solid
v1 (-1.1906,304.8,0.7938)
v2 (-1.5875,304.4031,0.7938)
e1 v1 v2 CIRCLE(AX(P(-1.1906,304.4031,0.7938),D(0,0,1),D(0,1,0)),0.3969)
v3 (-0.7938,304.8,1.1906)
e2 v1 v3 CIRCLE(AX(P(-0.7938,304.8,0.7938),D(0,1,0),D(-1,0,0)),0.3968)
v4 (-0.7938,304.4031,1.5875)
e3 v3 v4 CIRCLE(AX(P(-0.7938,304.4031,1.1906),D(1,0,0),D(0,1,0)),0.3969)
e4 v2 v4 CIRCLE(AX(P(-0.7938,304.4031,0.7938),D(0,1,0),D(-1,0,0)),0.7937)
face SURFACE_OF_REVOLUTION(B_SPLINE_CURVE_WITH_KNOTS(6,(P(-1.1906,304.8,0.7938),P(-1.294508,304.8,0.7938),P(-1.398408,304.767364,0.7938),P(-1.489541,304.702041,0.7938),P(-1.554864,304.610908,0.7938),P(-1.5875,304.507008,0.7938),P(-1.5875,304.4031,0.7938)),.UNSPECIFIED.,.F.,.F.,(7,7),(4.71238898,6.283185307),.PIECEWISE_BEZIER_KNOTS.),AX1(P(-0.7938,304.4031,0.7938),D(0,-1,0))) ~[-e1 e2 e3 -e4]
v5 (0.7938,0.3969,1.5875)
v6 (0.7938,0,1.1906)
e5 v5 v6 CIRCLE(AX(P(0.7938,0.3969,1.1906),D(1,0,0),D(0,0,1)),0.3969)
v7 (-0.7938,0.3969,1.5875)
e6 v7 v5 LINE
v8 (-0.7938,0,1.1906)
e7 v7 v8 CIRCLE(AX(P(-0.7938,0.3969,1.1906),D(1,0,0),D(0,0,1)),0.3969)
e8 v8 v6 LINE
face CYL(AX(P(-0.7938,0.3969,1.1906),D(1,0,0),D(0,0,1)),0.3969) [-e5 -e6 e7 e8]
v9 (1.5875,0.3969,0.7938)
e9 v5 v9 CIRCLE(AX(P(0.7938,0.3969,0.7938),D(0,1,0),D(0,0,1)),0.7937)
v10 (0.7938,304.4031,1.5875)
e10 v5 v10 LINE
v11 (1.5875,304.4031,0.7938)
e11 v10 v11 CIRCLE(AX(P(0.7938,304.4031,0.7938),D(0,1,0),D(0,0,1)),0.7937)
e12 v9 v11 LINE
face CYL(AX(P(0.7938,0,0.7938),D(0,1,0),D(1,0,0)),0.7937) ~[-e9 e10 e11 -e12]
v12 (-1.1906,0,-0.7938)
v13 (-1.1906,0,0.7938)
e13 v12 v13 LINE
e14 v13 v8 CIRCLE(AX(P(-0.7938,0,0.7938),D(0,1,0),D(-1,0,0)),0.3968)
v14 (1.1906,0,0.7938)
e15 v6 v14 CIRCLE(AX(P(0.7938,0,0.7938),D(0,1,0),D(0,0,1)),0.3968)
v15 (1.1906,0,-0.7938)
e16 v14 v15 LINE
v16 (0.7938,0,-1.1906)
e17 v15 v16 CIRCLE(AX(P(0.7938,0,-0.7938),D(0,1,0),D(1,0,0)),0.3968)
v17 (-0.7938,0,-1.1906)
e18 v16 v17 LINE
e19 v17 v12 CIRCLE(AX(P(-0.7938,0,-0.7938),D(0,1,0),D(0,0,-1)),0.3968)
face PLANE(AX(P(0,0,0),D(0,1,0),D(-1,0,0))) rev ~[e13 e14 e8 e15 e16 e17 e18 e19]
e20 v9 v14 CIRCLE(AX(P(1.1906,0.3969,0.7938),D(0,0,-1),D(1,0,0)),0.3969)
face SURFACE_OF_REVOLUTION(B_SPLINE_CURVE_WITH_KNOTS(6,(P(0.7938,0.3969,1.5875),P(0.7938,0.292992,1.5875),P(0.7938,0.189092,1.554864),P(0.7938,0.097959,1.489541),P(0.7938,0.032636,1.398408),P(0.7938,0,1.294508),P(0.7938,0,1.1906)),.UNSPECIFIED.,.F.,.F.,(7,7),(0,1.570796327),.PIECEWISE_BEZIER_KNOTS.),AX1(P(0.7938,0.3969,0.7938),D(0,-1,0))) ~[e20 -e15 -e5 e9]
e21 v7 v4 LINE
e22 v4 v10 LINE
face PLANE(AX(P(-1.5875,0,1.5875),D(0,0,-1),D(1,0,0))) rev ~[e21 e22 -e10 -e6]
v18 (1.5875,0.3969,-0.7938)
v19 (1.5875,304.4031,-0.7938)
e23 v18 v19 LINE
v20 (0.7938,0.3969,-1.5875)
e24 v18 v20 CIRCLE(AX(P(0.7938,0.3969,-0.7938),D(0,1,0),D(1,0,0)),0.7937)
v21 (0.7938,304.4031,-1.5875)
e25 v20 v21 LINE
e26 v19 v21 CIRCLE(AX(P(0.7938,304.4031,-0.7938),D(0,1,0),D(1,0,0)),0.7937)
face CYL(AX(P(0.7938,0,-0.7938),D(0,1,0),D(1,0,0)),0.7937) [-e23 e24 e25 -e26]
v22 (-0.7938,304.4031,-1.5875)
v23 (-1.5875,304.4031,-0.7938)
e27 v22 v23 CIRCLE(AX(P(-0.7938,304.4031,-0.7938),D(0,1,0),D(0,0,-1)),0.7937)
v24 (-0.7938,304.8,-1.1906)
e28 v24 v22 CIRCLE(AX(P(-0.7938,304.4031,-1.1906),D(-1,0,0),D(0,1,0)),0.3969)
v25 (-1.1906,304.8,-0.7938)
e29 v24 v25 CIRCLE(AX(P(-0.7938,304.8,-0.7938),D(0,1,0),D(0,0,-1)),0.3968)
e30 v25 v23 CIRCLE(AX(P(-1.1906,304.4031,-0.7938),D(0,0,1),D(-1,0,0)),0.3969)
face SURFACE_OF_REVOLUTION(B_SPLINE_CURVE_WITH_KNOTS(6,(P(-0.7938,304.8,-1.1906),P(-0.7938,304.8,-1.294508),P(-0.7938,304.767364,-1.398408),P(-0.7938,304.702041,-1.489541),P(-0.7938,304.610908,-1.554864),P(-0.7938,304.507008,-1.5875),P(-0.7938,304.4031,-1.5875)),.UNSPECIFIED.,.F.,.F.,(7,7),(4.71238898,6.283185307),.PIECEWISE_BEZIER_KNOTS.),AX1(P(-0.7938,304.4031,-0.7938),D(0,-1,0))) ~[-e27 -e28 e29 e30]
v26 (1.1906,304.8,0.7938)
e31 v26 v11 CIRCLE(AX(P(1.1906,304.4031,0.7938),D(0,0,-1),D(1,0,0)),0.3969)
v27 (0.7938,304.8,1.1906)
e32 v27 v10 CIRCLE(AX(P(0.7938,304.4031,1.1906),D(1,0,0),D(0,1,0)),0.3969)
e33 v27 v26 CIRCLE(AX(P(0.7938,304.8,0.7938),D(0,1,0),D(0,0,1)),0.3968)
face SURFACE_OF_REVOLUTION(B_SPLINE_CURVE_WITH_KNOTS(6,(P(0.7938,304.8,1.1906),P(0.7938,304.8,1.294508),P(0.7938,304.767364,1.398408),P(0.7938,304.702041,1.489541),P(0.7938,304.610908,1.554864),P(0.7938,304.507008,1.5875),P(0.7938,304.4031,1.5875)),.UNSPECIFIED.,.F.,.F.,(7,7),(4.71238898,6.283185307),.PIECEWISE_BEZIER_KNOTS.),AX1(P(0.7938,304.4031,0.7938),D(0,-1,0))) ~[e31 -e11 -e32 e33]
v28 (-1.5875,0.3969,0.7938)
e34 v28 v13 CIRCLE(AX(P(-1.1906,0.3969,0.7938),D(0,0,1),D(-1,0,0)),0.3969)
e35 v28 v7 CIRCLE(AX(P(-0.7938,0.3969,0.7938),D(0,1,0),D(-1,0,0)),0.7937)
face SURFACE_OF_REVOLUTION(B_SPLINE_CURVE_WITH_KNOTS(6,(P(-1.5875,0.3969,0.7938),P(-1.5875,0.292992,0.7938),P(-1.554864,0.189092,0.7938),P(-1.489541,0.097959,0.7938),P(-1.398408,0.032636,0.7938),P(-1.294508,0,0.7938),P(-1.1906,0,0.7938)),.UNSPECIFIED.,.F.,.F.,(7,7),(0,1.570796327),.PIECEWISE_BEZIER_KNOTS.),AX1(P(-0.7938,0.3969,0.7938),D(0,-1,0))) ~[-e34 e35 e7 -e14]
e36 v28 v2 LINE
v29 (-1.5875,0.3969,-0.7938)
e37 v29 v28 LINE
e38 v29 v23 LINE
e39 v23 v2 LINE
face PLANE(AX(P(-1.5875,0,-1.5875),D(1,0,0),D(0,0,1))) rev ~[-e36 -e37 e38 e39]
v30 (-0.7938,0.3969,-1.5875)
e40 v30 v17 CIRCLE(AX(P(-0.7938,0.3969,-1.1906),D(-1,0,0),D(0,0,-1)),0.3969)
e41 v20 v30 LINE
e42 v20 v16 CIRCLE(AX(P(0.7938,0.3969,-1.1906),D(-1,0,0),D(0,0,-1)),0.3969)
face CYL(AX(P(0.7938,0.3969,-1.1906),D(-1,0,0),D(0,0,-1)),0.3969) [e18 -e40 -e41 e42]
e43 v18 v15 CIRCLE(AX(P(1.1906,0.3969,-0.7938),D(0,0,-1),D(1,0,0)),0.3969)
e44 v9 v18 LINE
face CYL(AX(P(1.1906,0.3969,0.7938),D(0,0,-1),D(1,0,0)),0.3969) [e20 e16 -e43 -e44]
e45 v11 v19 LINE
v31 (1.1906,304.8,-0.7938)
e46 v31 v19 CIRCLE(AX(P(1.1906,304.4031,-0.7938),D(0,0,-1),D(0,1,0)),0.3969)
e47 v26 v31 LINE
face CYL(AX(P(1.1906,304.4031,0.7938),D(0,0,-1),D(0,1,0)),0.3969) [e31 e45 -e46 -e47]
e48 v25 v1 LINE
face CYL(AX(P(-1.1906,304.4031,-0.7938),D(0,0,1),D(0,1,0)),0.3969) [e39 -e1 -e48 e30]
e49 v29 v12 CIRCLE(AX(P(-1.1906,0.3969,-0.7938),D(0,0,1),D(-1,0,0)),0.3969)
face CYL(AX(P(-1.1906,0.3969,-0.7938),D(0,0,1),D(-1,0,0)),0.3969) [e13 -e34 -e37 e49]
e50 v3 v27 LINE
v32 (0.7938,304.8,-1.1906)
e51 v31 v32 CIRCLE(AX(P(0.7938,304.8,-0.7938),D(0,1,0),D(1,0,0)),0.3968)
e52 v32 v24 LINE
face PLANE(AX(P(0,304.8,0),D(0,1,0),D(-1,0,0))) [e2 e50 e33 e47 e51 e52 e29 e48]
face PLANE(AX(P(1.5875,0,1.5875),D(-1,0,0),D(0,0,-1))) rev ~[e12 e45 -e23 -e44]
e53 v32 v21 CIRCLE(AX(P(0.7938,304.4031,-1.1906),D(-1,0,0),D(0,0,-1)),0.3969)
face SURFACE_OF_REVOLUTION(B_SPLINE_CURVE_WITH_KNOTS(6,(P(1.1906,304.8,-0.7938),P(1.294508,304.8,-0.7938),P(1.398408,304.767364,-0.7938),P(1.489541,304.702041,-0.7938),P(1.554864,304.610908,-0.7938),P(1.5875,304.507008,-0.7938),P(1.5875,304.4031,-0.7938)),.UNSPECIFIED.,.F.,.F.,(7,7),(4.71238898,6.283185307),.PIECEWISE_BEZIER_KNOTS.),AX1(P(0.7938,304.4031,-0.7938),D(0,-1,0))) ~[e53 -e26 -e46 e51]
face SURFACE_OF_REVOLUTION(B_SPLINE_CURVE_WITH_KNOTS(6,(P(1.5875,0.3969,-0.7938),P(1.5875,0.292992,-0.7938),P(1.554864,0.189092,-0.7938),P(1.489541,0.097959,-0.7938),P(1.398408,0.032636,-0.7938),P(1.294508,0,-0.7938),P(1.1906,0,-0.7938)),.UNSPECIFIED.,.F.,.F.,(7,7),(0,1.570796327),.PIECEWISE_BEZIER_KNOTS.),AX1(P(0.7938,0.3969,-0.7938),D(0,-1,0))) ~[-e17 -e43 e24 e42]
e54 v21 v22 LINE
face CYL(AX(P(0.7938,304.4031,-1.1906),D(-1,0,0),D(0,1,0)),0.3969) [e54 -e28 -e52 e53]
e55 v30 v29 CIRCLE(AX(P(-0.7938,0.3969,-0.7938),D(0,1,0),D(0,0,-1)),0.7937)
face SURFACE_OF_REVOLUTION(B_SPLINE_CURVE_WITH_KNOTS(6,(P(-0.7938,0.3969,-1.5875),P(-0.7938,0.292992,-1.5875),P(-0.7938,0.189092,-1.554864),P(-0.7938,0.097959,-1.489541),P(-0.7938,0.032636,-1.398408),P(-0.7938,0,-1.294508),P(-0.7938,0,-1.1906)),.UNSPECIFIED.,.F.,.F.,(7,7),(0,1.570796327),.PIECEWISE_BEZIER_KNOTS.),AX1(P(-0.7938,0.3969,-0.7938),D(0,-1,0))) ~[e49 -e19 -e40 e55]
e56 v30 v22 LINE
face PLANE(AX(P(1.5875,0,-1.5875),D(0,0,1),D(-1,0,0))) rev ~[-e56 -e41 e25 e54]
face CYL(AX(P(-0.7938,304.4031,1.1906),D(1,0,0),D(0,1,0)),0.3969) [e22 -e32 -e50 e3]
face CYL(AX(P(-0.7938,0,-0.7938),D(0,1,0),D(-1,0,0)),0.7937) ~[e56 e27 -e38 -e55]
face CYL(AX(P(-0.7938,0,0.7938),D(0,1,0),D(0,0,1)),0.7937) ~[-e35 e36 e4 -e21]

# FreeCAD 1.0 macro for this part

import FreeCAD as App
import Part
import Sketcher

V = App.Vector
Q = App.Units.Quantity


def edges_at(feature, points):
    """Names of the edges that pass closest to the given points."""
    edges = feature.Shape.Edges
    near = lambda p: min(range(len(edges)), key=lambda i: edges[i].distToShape(Part.Vertex(*p))[0])
    return sorted({f"Edge{near(p) + 1}" for p in points})

doc = App.newDocument("Part")
body = doc.addObject("PartDesign::Body", "Body")

# Sketch on XZ plane
sketch1 = body.newObject("Sketcher::SketchObject", "Sketch")
sketch1.AttachmentSupport = (doc.getObject("XZ_Plane"), [""])
sketch1.MapMode = "FlatFace"
sketch1.addGeometry([
    Part.LineSegment(V(1.6, 1.6, 0), V(1.6, -1.6, 0)),
    Part.LineSegment(V(1.6, -1.6, 0), V(-1.6, -1.6, 0)),
    Part.LineSegment(V(-1.6, -1.6, 0), V(-1.6, 1.6, 0)),
    Part.LineSegment(V(-1.6, 1.6, 0), V(1.6, 1.6, 0)),
], False)
sketch1.addConstraint([
    Sketcher.Constraint("Coincident", 0, 2, 1, 1),
    Sketcher.Constraint("Coincident", 1, 2, 2, 1),
    Sketcher.Constraint("Coincident", 2, 2, 3, 1),
    Sketcher.Constraint("Coincident", 3, 2, 0, 1),
    Sketcher.Constraint("Vertical", 0),
    Sketcher.Constraint("Horizontal", 1),
    Sketcher.Constraint("Vertical", 2),
    Sketcher.Constraint("Horizontal", 3),
    Sketcher.Constraint("Symmetric", 0, 2, 2, 2, -1, 1),
    Sketcher.Constraint("Equal", 3, 0),
    Sketcher.Constraint("DistanceX", 1, 2, 1, 1, Q("0.125 in")),
])
pad1 = body.newObject("PartDesign::Pad", "Pad")
pad1.Profile = sketch1
pad1.Length = Q("12 in")
pad1.Reversed = True
doc.recompute()

fillet = body.newObject("PartDesign::Fillet", "Fillet")
fillet.Base = (pad1, edges_at(pad1, [
    (1.587, 152.4, -1.587),
    (-1.587, 152.4, -1.587),
    (1.587, 152.4, 1.587),
    (-1.587, 152.4, 1.587),
]))
fillet.Radius = Q("0.031248 in")
doc.recompute()

fillet2 = body.newObject("PartDesign::Fillet", "Fillet001")
fillet2.Base = (fillet, edges_at(fillet, [
    (1.587, 0, 0),
    (1.355, 0, -1.355),
    (0, 0, -1.587),
    (-1.355, 0, -1.355),
    (-1.587, 0, 0),
    (-1.355, 0, 1.355),
    (0, 0, 1.587),
    (1.355, 0, 1.355),
    (0, 304.8, 1.587),
    (-1.355, 304.8, 1.355),
    (-1.587, 304.8, 0),
    (-1.355, 304.8, -1.355),
    (0, 304.8, -1.587),
    (1.355, 304.8, -1.355),
    (1.587, 304.8, 0),
    (1.355, 304.8, 1.355),
]))
fillet2.Radius = Q("0.015626 in")

doc.recompute()
